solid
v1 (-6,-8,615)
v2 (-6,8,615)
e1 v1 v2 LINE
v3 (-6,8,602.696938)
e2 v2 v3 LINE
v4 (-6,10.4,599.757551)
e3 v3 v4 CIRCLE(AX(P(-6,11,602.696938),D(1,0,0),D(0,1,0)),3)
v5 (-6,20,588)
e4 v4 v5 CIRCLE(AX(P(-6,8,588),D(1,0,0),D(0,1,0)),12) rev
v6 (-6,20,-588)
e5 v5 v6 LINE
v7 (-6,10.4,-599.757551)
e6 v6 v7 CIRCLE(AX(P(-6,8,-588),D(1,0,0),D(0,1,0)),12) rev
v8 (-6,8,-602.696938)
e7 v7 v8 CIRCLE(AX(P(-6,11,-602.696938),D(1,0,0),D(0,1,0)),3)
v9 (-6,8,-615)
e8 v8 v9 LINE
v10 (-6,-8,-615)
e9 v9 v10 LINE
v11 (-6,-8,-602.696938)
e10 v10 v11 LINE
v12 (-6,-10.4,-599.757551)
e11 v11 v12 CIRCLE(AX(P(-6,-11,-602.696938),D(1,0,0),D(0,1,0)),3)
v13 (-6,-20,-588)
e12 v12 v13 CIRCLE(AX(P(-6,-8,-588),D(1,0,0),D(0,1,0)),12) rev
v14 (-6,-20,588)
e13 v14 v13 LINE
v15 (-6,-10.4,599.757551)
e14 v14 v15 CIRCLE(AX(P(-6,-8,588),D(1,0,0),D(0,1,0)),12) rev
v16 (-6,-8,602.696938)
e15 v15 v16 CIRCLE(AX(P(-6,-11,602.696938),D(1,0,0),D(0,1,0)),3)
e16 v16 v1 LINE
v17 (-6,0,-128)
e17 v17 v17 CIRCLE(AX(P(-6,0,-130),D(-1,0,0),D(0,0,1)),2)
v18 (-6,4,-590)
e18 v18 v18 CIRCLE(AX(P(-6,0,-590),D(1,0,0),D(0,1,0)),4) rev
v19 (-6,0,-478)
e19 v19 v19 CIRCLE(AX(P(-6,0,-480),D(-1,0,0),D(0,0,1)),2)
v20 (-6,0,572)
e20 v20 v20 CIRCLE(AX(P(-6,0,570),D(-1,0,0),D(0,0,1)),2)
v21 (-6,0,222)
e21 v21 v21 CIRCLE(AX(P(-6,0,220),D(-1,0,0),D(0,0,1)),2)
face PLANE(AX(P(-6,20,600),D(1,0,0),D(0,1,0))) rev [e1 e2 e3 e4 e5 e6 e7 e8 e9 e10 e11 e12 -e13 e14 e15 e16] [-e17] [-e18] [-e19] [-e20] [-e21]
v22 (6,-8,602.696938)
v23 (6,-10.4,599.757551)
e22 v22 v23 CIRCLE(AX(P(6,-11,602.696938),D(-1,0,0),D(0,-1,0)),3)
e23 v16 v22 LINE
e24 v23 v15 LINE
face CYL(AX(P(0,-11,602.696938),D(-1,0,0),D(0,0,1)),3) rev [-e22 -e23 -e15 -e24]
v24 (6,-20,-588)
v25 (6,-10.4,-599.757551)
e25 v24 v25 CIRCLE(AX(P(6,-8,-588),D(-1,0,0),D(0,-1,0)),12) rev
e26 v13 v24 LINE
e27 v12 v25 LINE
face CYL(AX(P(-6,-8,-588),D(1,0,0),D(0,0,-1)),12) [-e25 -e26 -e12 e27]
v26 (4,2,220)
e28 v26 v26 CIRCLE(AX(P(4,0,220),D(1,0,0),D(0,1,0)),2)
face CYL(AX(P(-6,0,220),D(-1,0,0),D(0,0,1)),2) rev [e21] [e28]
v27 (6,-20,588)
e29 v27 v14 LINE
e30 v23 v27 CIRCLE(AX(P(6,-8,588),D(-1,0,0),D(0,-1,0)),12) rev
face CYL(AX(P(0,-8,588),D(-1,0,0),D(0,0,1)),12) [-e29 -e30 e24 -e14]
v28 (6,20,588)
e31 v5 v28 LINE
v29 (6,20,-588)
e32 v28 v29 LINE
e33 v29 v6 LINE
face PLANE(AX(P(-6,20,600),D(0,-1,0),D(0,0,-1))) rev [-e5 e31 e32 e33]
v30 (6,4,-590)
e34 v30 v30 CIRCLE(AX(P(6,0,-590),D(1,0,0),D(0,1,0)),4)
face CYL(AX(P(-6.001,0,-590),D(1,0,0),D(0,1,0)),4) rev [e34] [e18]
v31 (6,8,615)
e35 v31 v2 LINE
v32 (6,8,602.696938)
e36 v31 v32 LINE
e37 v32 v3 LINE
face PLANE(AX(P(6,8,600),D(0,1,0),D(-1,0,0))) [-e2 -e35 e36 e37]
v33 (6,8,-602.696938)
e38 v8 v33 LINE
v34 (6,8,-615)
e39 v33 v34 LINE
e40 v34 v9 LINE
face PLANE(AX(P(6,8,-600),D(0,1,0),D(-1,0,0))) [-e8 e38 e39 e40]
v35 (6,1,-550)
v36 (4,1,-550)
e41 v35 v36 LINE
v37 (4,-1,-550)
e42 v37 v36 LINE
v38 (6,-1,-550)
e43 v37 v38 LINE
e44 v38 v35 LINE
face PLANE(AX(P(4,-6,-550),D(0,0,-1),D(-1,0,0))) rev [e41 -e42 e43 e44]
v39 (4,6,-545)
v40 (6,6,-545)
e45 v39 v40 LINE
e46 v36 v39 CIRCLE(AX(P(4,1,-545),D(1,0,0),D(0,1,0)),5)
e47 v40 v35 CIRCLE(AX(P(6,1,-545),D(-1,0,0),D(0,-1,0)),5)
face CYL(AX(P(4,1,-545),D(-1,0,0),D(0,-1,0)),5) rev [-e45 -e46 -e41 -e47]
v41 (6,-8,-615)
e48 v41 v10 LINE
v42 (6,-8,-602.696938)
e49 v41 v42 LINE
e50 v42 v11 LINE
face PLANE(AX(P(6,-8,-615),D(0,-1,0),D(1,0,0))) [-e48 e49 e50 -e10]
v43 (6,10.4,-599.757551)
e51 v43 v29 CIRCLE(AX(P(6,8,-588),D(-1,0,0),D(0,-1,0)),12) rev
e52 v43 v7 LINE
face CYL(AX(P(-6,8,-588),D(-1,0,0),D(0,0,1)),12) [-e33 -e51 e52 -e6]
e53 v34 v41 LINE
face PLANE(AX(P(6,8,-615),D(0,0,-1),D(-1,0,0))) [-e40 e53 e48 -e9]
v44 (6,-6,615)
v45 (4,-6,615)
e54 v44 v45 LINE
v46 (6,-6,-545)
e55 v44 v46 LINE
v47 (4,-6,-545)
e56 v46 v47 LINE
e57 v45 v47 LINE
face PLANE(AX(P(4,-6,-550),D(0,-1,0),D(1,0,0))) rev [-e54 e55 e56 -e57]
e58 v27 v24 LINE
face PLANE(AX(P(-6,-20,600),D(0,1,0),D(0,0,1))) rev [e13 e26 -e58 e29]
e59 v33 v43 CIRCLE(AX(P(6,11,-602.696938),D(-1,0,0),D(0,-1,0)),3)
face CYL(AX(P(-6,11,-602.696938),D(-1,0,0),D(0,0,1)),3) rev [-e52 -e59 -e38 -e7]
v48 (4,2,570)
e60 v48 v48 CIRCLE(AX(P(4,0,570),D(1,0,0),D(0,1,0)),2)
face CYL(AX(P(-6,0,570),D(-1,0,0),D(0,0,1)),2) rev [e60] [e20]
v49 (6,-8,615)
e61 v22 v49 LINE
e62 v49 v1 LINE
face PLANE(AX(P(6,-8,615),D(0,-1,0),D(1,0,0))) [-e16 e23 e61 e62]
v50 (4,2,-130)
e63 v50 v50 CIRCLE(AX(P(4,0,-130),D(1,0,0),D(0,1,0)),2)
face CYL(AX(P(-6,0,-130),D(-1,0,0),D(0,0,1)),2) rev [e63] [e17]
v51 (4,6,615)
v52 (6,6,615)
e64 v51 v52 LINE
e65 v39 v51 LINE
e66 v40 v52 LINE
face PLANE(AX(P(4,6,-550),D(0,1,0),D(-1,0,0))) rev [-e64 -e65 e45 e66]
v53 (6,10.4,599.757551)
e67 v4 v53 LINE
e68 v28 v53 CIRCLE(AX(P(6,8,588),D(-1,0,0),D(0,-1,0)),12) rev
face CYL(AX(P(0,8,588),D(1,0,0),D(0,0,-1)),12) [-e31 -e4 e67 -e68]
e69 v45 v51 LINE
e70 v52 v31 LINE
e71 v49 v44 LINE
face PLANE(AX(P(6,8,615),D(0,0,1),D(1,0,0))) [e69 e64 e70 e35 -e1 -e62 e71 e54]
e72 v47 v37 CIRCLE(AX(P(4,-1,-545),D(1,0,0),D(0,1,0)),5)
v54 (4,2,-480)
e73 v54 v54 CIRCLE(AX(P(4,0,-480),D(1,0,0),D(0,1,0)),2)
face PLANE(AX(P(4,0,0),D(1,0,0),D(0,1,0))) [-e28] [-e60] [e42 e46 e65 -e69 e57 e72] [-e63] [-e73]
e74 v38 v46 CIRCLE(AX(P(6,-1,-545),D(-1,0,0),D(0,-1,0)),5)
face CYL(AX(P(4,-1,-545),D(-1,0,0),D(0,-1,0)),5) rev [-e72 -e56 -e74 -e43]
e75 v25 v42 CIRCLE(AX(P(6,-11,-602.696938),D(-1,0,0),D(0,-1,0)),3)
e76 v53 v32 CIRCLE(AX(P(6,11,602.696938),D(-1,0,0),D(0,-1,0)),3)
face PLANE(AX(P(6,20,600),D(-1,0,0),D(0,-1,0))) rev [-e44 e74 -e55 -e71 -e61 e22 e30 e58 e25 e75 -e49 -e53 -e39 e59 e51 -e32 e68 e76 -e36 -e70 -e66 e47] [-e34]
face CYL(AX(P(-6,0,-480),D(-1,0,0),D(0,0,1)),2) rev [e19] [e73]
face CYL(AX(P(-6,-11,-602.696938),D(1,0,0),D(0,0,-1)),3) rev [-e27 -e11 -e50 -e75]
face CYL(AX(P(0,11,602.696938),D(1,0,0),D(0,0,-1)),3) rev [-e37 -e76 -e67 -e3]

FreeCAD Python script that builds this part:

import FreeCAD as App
import Part
import Sketcher

V = App.Vector
Q = App.Units.Quantity


def edges_at(feature, points):
    """Names of the edges that pass closest to the given points."""
    edges = feature.Shape.Edges
    near = lambda p: min(range(len(edges)), key=lambda i: edges[i].distToShape(Part.Vertex(*p))[0])
    return sorted({f"Edge{near(p) + 1}" for p in points})


def add_polygon(sketch, points):
    """Adds a closed chain of lines whose ends are joined by coincident constraints."""
    first, n = sketch.GeometryCount, len(points)
    for a, b in zip(points, points[1:] + points[:1]):
        sketch.addGeometry(Part.LineSegment(App.Vector(*a, 0), App.Vector(*b, 0)), False)
    for i in range(n):
        sketch.addConstraint(Sketcher.Constraint("Coincident", first + i, 2, first + (i + 1) % n, 1))

doc = App.newDocument("Part")
body = doc.addObject("PartDesign::Body", "Body")

sketch1 = body.newObject("Sketcher::SketchObject", "Sketch")
sketch1.AttachmentSupport = (doc.getObject("XY_Plane"), [""])
sketch1.MapMode = "FlatFace"
add_polygon(sketch1, [(-6, 20), (-6, -20), (6, -20), (6, 20)])
sketch1.addConstraint(Sketcher.Constraint("Vertical", 0))
sketch1.addConstraint(Sketcher.Constraint("Horizontal", 1))
sketch1.addConstraint(Sketcher.Constraint("Vertical", 2))
sketch1.addConstraint(Sketcher.Constraint("Horizontal", 3))
sketch1.addConstraint(Sketcher.Constraint("Symmetric", 0, 2, 2, 2, -1, 1))
sketch1.addConstraint(Sketcher.Constraint("DistanceX", 1, 1, 1, 2, Q("12 mm")))
sketch1.addConstraint(Sketcher.Constraint("DistanceY", 0, 2, 0, 1, Q("40 mm")))
pad1 = body.newObject("PartDesign::Pad", "Pad")
pad1.Profile = sketch1
pad1.Length = 1200
pad1.Midplane = True
doc.recompute()

fillet = body.newObject("PartDesign::Fillet", "Fillet")
fillet.Base = (pad1, edges_at(pad1, [
    (0, -20, 600),
    (0, -20, -600),
    (0, 20, -600),
    (0, 20, 600),
]))
fillet.Radius = 12

sketch2 = body.newObject("Sketcher::SketchObject", "Sketch001")
sketch2.AttachmentSupport = (doc.getObject("YZ_Plane"), [""])
sketch2.MapMode = "FlatFace"
sketch2.AttachmentOffset = App.Placement(V(0, 0, 6), App.Rotation())
add_polygon(sketch2, [(6, 600), (-6, 600), (-6, -550), (6, -550)])
sketch2.addConstraint(Sketcher.Constraint("Horizontal", 0))
sketch2.addConstraint(Sketcher.Constraint("Vertical", 1))
sketch2.addConstraint(Sketcher.Constraint("Horizontal", 2))
sketch2.addConstraint(Sketcher.Constraint("Vertical", 3))
sketch2.addConstraint(Sketcher.Constraint("DistanceX", 0, 2, 0, 1, Q("12 mm")))
sketch2.addConstraint(Sketcher.Constraint("DistanceY", 1, 2, 1, 1, Q("1150 mm")))
sketch2.addConstraint(Sketcher.Constraint("DistanceX", 0, 2, -1, 1, Q("6 mm")))
sketch2.addConstraint(Sketcher.Constraint("DistanceY", -1, 1, 0, 2, Q("600 mm")))
pocket1 = body.newObject("PartDesign::Pocket", "Pocket")
pocket1.Profile = sketch2
pocket1.Length = 2
doc.recompute()

fillet2 = body.newObject("PartDesign::Fillet", "Fillet001")
fillet2.Base = (pocket1, edges_at(pocket1, [(5, 6, -550), (5, -6, -550)]))
fillet2.Radius = 5

sketch3 = body.newObject("Sketcher::SketchObject", "Sketch002")
sketch3.AttachmentSupport = (doc.getObject("YZ_Plane"), [""])
sketch3.MapMode = "FlatFace"
sketch3.AttachmentOffset = App.Placement(V(0, 0, 6), App.Rotation())
sketch3.addGeometry(Part.Circle(V(0, -590, 0), V(0, 0, 1), 4), False)
sketch3.addConstraint(Sketcher.Constraint("PointOnObject", 0, 3, -2))
sketch3.addConstraint(Sketcher.Constraint("Diameter", 0, Q("8 mm")))
sketch3.addConstraint(Sketcher.Constraint("DistanceY", 0, 3, -1, 1, Q("590 mm")))
pocket2 = body.newObject("PartDesign::Pocket", "Pocket001")
pocket2.Profile = sketch3
pocket2.Type = "UpToFirst"

sketch4 = body.newObject("Sketcher::SketchObject", "Sketch003")
sketch4.AttachmentSupport = (doc.getObject("YZ_Plane"), [""])
sketch4.MapMode = "FlatFace"
sketch4.AttachmentOffset = App.Placement(V(0, 0, -6), App.Rotation())
sketch4.addGeometry(Part.Circle(V(0, 570, 0), V(0, 0, 1), 2), False)
sketch4.addConstraint(Sketcher.Constraint("PointOnObject", 0, 3, -2))
sketch4.addConstraint(Sketcher.Constraint("Diameter", 0, Q("4 mm")))
sketch4.addConstraint(Sketcher.Constraint("DistanceY", -1, 1, 0, 3, Q("570 mm")))
doc.recompute()
hole = body.newObject("PartDesign::Hole", "Hole")
hole.Profile = sketch4
hole.ThreadType = "None"
hole.Diameter = 4
hole.DepthType = "Dimension"
hole.Depth = 10
hole.DrillPoint = "Flat"
hole.Reversed = True
doc.recompute()

linearpattern = body.newObject("PartDesign::LinearPattern", "LinearPattern")
linearpattern.Originals = [hole]
linearpattern.Direction = (doc.getObject("Z_Axis"), [""])
linearpattern.Mode = "offset"
linearpattern.Offset = 350
linearpattern.Occurrences = 4
linearpattern.Reversed = True
body.Tip = linearpattern

sketch5 = body.newObject("Sketcher::SketchObject", "Sketch004")
sketch5.AttachmentSupport = (doc.getObject("YZ_Plane"), [""])
sketch5.MapMode = "FlatFace"
sketch5.AttachmentOffset = App.Placement(V(0, 0, -6), App.Rotation())
add_polygon(sketch5, [(8, -615), (-8, -615), (-8, -600), (8, -600)])
add_polygon(sketch5, [(8, 600), (-8, 600), (-8, 615), (8, 615)])
sketch5.addConstraint(Sketcher.Constraint("Horizontal", 0))
sketch5.addConstraint(Sketcher.Constraint("Vertical", 1))
sketch5.addConstraint(Sketcher.Constraint("Horizontal", 2))
sketch5.addConstraint(Sketcher.Constraint("Vertical", 3))
sketch5.addConstraint(Sketcher.Constraint("Horizontal", 4))
sketch5.addConstraint(Sketcher.Constraint("Vertical", 5))
sketch5.addConstraint(Sketcher.Constraint("Horizontal", 6))
sketch5.addConstraint(Sketcher.Constraint("Vertical", 7))
sketch5.addConstraint(Sketcher.Constraint("Symmetric", 2, 2, 4, 2, -1, 1))
sketch5.addConstraint(Sketcher.Constraint("Symmetric", 0, 2, 6, 2, -1, 1))
sketch5.addConstraint(Sketcher.Constraint("Vertical", 1, 2, 4, 2))
sketch5.addConstraint(Sketcher.Constraint("DistanceX", 0, 2, 0, 1, Q("16 mm")))
sketch5.addConstraint(Sketcher.Constraint("DistanceY", 1, 1, 1, 2, Q("15 mm")))
sketch5.addConstraint(Sketcher.Constraint("DistanceY", 0, 2, -1, 1, Q("615 mm")))
pad2 = body.newObject("PartDesign::Pad", "Pad001")
pad2.Profile = sketch5
pad2.Length = 12

sketch6 = body.newObject("Sketcher::SketchObject", "Sketch005")
sketch6.AttachmentSupport = (doc.getObject("XY_Plane"), [""])
sketch6.MapMode = "FlatFace"
sketch6.AttachmentOffset = App.Placement(V(0, 0, 600), App.Rotation())
add_polygon(sketch6, [(6, 6), (6, -6), (4, -6), (4, 6)])
sketch6.addConstraint(Sketcher.Constraint("Vertical", 0))
sketch6.addConstraint(Sketcher.Constraint("Horizontal", 1))
sketch6.addConstraint(Sketcher.Constraint("Vertical", 2))
sketch6.addConstraint(Sketcher.Constraint("Horizontal", 3))
sketch6.addConstraint(Sketcher.Constraint("DistanceX", 1, 2, 1, 1, Q("2 mm")))
sketch6.addConstraint(Sketcher.Constraint("DistanceY", 0, 2, 0, 1, Q("12 mm")))
sketch6.addConstraint(Sketcher.Constraint("DistanceX", -1, 1, 0, 2, Q("6 mm")))
sketch6.addConstraint(Sketcher.Constraint("DistanceY", 0, 2, -1, 1, Q("6 mm")))
pocket3 = body.newObject("PartDesign::Pocket", "Pocket002")
pocket3.Profile = sketch6
pocket3.Type = "UpToFirst"
pocket3.Reversed = True
doc.recompute()

fillet3 = body.newObject("PartDesign::Fillet", "Fillet002")
fillet3.Base = (pocket3, edges_at(pocket3, [
    (0, -8, 600),
    (0, 8, 600),
    (0, -8, -600),
    (0, 8, -600),
]))
fillet3.Radius = 3

doc.recompute()
